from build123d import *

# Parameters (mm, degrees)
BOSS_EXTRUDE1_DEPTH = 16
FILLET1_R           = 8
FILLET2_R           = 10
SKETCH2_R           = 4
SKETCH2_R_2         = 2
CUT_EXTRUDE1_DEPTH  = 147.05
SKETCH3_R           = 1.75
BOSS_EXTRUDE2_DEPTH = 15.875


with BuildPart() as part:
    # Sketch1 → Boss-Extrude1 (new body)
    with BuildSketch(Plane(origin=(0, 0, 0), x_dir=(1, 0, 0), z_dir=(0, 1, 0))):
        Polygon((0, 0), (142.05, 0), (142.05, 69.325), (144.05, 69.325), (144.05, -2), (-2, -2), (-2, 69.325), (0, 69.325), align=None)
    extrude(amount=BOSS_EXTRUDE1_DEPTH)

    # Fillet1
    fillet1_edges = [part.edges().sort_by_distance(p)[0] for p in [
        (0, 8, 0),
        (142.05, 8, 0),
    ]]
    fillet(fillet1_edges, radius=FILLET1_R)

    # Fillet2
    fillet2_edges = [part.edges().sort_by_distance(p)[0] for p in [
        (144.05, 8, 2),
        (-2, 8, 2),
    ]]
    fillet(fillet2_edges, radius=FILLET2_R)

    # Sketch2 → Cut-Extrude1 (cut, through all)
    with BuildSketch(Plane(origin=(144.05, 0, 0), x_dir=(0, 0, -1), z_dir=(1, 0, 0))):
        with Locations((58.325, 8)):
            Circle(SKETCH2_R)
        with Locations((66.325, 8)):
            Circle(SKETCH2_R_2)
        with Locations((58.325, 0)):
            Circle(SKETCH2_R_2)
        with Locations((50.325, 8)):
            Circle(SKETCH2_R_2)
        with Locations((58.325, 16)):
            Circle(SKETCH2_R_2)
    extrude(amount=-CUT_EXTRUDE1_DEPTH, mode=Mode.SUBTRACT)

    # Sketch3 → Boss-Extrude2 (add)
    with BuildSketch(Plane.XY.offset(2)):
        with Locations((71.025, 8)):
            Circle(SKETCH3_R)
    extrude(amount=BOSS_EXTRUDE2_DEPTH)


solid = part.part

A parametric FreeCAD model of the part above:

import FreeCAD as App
import Part
import Sketcher


def edges_at(feature, points):
    """Names of the edges that pass closest to the given points."""
    edges = feature.Shape.Edges
    near = lambda p: min(range(len(edges)), key=lambda i: edges[i].distToShape(Part.Vertex(*p))[0])
    return sorted({f"Edge{near(p) + 1}" for p in points})


def add_polygon(sketch, points):
    """Adds a closed chain of lines whose ends are joined by coincident constraints."""
    first, n = sketch.GeometryCount, len(points)
    for a, b in zip(points, points[1:] + points[:1]):
        sketch.addGeometry(Part.LineSegment(App.Vector(*a, 0), App.Vector(*b, 0)), False)
    for i in range(n):
        sketch.addConstraint(Sketcher.Constraint("Coincident", first + i, 2, first + (i + 1) % n, 1))

doc = App.newDocument("Part")
body = doc.addObject("PartDesign::Body", "Body")

# Sketch on XZ plane
sketch1 = body.newObject("Sketcher::SketchObject", "Sketch")
sketch1.AttachmentSupport = (doc.getObject("XZ_Plane"), [""])
sketch1.MapMode = "FlatFace"
add_polygon(sketch1, [(142.1, 0), (0, 0), (0, -69.3), (-2, -69.3), (-2, 2), (144.1, 2), (144.1, -69.3), (142.1, -69.3)])  # lines 0-7
sketch1.addConstraint(Sketcher.Constraint("Horizontal", 0))
sketch1.addConstraint(Sketcher.Constraint("Vertical", 1))
sketch1.addConstraint(Sketcher.Constraint("Horizontal", 2))
sketch1.addConstraint(Sketcher.Constraint("Vertical", 3))
sketch1.addConstraint(Sketcher.Constraint("Horizontal", 4))
sketch1.addConstraint(Sketcher.Constraint("Vertical", 5))
sketch1.addConstraint(Sketcher.Constraint("Horizontal", 6))
sketch1.addConstraint(Sketcher.Constraint("Vertical", 7))
sketch1.addConstraint(Sketcher.Constraint("Coincident", 0, 2, -1, 1))
sketch1.addConstraint(Sketcher.Constraint("Horizontal", 2, 2, 5, 2))
sketch1.addConstraint(Sketcher.Constraint("Equal", 2, 6))
sketch1.addConstraint(Sketcher.Constraint("DistanceX", 2, 2, 2, 1, 2.0))
sketch1.addConstraint(Sketcher.Constraint("DistanceY", -1, 1, 3, 2, 2.0))
sketch1.addConstraint(Sketcher.Constraint("DistanceX", 0, 2, 0, 1, 142.05))
sketch1.addConstraint(Sketcher.Constraint("DistanceY", 1, 2, 1, 1, 69.325))
pad1 = body.newObject("PartDesign::Pad", "Pad")
pad1.Profile = sketch1
pad1.Length = 16
pad1.Reversed = True
doc.recompute()

fillet = body.newObject("PartDesign::Fillet", "Fillet")
fillet.Base = (pad1, edges_at(pad1, [(0, 8, 0), (142.05, 8, 0)]))
fillet.Radius = 8
doc.recompute()

fillet2 = body.newObject("PartDesign::Fillet", "Fillet001")
fillet2.Base = (fillet, edges_at(fillet, [(144.05, 8, 2), (-2, 8, 2)]))
fillet2.Radius = 10

# Sketch on YZ plane
sketch2 = body.newObject("Sketcher::SketchObject", "Sketch001")
sketch2.AttachmentSupport = (doc.getObject("YZ_Plane"), [""])
sketch2.MapMode = "FlatFace"
sketch2.AttachmentOffset = App.Placement(App.Vector(0, 0, 144.05), App.Rotation())
sketch2.addGeometry(Part.Circle(App.Vector(8, -58.3, 0), App.Vector(0, 0, 1), 4), False)
sketch2.addGeometry(Part.Circle(App.Vector(8, -66.3, 0), App.Vector(0, 0, 1), 2), False)
sketch2.addGeometry(Part.Circle(App.Vector(0, -58.3, 0), App.Vector(0, 0, 1), 2), False)
sketch2.addGeometry(Part.Circle(App.Vector(8, -50.3, 0), App.Vector(0, 0, 1), 2), False)
sketch2.addGeometry(Part.Circle(App.Vector(16, -58.3, 0), App.Vector(0, 0, 1), 2), False)
sketch2.addConstraint(Sketcher.Constraint("Equal", 1, 2))
sketch2.addConstraint(Sketcher.Constraint("Equal", 2, 3))
sketch2.addConstraint(Sketcher.Constraint("Equal", 3, 4))
sketch2.addConstraint(Sketcher.Constraint("PointOnObject", 2, 3, -2))
sketch2.addConstraint(Sketcher.Constraint("Horizontal", 0, 3, 2, 3))
sketch2.addConstraint(Sketcher.Constraint("Horizontal", 2, 3, 4, 3))
sketch2.addConstraint(Sketcher.Constraint("Vertical", 0, 3, 1, 3))
sketch2.addConstraint(Sketcher.Constraint("Vertical", 1, 3, 3, 3))
sketch2.addConstraint(Sketcher.Constraint("Diameter", 0, 8.0))
sketch2.addConstraint(Sketcher.Constraint("Diameter", 1, 4.0))
sketch2.addConstraint(Sketcher.Constraint("DistanceX", -1, 1, 0, 3, 8.0))
sketch2.addConstraint(Sketcher.Constraint("DistanceX", -1, 1, 4, 3, 16.0))
sketch2.addConstraint(Sketcher.Constraint("DistanceY", 1, 3, 0, 3, 8.0))
sketch2.addConstraint(Sketcher.Constraint("DistanceY", 0, 3, 3, 3, 8.0))
sketch2.addConstraint(Sketcher.Constraint("DistanceY", 0, 3, -1, 1, 58.325))
pocket1 = body.newObject("PartDesign::Pocket", "Pocket")
pocket1.Profile = sketch2
pocket1.Type = "ThroughAll"

# Sketch on XY plane
sketch3 = body.newObject("Sketcher::SketchObject", "Sketch002")
sketch3.AttachmentSupport = (doc.getObject("XY_Plane"), [""])
sketch3.MapMode = "FlatFace"
sketch3.AttachmentOffset = App.Placement(App.Vector(0, 0, 2), App.Rotation())
sketch3.addGeometry(Part.Circle(App.Vector(71, 8, 0), App.Vector(0, 0, 1), 1.8), False)
sketch3.addConstraint(Sketcher.Constraint("Diameter", 0, 3.5))
sketch3.addConstraint(Sketcher.Constraint("DistanceY", -1, 1, 0, 3, 8.0))
sketch3.addConstraint(Sketcher.Constraint("DistanceX", -1, 1, 0, 3, 71.025))
pad2 = body.newObject("PartDesign::Pad", "Pad001")
pad2.Profile = sketch3
pad2.Length = 15.875

doc.recompute()
